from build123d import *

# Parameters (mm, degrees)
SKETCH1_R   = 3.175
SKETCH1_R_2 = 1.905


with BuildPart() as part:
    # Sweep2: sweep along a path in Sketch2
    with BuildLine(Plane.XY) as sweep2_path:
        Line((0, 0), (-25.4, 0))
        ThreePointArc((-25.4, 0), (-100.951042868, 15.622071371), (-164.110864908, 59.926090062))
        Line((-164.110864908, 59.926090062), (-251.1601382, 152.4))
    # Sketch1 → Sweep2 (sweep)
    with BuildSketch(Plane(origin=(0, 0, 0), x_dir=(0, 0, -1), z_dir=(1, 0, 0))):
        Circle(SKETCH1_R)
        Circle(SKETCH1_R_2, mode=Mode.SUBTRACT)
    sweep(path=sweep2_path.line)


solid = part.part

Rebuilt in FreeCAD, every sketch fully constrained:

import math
import FreeCAD as App
import Part
import Sketcher

V = App.Vector
Q = App.Units.Quantity

doc = App.newDocument("Part")
params = doc.addObject("Spreadsheet::Sheet", "Params")
for row, (alias, value) in enumerate([
    ("sketch1_diameter", "0.25 in"),
    ("sketch1_diameter2", "0.15 in"),
    ("sketch2_radius", "7.5 in"),
    ("sketch2_width", "1 in"),
    ("sketch2_length", "5 in"),
], start=1):
    params.set(f"A{row}", alias)
    params.set(f"B{row}", "=" + value)
    params.setAlias(f"B{row}", alias)

body = doc.addObject("PartDesign::Body", "Body")

sketch1 = body.newObject("Sketcher::SketchObject", "Sketch")
sketch1.AttachmentSupport = (doc.getObject("YZ_Plane"), [""])
sketch1.MapMode = "FlatFace"
sketch1.addGeometry(Part.Circle(V(0, 0, 0), V(0, 0, 1), 3.2), False)
sketch1.addGeometry(Part.Circle(V(0, 0, 0), V(0, 0, 1), 1.9), False)
sketch1.addConstraint(Sketcher.Constraint("Coincident", 0, 3, -1, 1))
sketch1.addConstraint(Sketcher.Constraint("Coincident", 1, 3, -1, 1))
sketch1.addConstraint(Sketcher.Constraint("Diameter", 0, Q("0.25 in")))
sketch1.addConstraint(Sketcher.Constraint("Diameter", 1, Q("0.15 in")))
sketch1.setExpression("Constraints[2]", "Params.sketch1_diameter")
sketch1.setExpression("Constraints[3]", "Params.sketch1_diameter2")

sketch2 = body.newObject("Sketcher::SketchObject", "Sketch001")
sketch2.AttachmentSupport = (doc.getObject("XY_Plane"), [""])
sketch2.MapMode = "FlatFace"
sketch2.addGeometry(Part.LineSegment(V(0, 0, 0), V(-25, 0, 0)), False)
sketch2.addGeometry(Part.ArcOfCircle(Part.Circle(V(-25, 190, 0), V(0, 0, 1), 190), math.radians(-137), math.radians(-90)), False)
sketch2.addGeometry(Part.LineSegment(V(-164, 60, 0), V(-251, 152, 0)), False)
sketch2.addConstraint(Sketcher.Constraint("Tangent", 0, 2, 1, 2))
sketch2.addConstraint(Sketcher.Constraint("Tangent", 1, 1, 2, 1))
sketch2.addConstraint(Sketcher.Constraint("Horizontal", 0))
sketch2.addConstraint(Sketcher.Constraint("Coincident", 0, 1, -1, 1))
sketch2.addConstraint(Sketcher.Constraint("Radius", 1, Q("7.5 in")))
sketch2.addConstraint(Sketcher.Constraint("DistanceX", 0, 2, 0, 1, Q("1 in")))
sketch2.addConstraint(Sketcher.Constraint("Distance", 2, Q("5 in")))
sketch2.addConstraint(Sketcher.Constraint("DistanceY", -1, 1, 2, 2, Q("6 in")))
sketch2.setExpression("Constraints[4]", "Params.sketch2_radius")
sketch2.setExpression("Constraints[5]", "Params.sketch2_width")
sketch2.setExpression("Constraints[6]", "Params.sketch2_length")
doc.recompute()

additivepipe = body.newObject("PartDesign::AdditivePipe", "AdditivePipe")
additivepipe.Profile = sketch1
additivepipe.Spine = (sketch2, ["Edge1", "Edge2", "Edge3"])

doc.recompute()
